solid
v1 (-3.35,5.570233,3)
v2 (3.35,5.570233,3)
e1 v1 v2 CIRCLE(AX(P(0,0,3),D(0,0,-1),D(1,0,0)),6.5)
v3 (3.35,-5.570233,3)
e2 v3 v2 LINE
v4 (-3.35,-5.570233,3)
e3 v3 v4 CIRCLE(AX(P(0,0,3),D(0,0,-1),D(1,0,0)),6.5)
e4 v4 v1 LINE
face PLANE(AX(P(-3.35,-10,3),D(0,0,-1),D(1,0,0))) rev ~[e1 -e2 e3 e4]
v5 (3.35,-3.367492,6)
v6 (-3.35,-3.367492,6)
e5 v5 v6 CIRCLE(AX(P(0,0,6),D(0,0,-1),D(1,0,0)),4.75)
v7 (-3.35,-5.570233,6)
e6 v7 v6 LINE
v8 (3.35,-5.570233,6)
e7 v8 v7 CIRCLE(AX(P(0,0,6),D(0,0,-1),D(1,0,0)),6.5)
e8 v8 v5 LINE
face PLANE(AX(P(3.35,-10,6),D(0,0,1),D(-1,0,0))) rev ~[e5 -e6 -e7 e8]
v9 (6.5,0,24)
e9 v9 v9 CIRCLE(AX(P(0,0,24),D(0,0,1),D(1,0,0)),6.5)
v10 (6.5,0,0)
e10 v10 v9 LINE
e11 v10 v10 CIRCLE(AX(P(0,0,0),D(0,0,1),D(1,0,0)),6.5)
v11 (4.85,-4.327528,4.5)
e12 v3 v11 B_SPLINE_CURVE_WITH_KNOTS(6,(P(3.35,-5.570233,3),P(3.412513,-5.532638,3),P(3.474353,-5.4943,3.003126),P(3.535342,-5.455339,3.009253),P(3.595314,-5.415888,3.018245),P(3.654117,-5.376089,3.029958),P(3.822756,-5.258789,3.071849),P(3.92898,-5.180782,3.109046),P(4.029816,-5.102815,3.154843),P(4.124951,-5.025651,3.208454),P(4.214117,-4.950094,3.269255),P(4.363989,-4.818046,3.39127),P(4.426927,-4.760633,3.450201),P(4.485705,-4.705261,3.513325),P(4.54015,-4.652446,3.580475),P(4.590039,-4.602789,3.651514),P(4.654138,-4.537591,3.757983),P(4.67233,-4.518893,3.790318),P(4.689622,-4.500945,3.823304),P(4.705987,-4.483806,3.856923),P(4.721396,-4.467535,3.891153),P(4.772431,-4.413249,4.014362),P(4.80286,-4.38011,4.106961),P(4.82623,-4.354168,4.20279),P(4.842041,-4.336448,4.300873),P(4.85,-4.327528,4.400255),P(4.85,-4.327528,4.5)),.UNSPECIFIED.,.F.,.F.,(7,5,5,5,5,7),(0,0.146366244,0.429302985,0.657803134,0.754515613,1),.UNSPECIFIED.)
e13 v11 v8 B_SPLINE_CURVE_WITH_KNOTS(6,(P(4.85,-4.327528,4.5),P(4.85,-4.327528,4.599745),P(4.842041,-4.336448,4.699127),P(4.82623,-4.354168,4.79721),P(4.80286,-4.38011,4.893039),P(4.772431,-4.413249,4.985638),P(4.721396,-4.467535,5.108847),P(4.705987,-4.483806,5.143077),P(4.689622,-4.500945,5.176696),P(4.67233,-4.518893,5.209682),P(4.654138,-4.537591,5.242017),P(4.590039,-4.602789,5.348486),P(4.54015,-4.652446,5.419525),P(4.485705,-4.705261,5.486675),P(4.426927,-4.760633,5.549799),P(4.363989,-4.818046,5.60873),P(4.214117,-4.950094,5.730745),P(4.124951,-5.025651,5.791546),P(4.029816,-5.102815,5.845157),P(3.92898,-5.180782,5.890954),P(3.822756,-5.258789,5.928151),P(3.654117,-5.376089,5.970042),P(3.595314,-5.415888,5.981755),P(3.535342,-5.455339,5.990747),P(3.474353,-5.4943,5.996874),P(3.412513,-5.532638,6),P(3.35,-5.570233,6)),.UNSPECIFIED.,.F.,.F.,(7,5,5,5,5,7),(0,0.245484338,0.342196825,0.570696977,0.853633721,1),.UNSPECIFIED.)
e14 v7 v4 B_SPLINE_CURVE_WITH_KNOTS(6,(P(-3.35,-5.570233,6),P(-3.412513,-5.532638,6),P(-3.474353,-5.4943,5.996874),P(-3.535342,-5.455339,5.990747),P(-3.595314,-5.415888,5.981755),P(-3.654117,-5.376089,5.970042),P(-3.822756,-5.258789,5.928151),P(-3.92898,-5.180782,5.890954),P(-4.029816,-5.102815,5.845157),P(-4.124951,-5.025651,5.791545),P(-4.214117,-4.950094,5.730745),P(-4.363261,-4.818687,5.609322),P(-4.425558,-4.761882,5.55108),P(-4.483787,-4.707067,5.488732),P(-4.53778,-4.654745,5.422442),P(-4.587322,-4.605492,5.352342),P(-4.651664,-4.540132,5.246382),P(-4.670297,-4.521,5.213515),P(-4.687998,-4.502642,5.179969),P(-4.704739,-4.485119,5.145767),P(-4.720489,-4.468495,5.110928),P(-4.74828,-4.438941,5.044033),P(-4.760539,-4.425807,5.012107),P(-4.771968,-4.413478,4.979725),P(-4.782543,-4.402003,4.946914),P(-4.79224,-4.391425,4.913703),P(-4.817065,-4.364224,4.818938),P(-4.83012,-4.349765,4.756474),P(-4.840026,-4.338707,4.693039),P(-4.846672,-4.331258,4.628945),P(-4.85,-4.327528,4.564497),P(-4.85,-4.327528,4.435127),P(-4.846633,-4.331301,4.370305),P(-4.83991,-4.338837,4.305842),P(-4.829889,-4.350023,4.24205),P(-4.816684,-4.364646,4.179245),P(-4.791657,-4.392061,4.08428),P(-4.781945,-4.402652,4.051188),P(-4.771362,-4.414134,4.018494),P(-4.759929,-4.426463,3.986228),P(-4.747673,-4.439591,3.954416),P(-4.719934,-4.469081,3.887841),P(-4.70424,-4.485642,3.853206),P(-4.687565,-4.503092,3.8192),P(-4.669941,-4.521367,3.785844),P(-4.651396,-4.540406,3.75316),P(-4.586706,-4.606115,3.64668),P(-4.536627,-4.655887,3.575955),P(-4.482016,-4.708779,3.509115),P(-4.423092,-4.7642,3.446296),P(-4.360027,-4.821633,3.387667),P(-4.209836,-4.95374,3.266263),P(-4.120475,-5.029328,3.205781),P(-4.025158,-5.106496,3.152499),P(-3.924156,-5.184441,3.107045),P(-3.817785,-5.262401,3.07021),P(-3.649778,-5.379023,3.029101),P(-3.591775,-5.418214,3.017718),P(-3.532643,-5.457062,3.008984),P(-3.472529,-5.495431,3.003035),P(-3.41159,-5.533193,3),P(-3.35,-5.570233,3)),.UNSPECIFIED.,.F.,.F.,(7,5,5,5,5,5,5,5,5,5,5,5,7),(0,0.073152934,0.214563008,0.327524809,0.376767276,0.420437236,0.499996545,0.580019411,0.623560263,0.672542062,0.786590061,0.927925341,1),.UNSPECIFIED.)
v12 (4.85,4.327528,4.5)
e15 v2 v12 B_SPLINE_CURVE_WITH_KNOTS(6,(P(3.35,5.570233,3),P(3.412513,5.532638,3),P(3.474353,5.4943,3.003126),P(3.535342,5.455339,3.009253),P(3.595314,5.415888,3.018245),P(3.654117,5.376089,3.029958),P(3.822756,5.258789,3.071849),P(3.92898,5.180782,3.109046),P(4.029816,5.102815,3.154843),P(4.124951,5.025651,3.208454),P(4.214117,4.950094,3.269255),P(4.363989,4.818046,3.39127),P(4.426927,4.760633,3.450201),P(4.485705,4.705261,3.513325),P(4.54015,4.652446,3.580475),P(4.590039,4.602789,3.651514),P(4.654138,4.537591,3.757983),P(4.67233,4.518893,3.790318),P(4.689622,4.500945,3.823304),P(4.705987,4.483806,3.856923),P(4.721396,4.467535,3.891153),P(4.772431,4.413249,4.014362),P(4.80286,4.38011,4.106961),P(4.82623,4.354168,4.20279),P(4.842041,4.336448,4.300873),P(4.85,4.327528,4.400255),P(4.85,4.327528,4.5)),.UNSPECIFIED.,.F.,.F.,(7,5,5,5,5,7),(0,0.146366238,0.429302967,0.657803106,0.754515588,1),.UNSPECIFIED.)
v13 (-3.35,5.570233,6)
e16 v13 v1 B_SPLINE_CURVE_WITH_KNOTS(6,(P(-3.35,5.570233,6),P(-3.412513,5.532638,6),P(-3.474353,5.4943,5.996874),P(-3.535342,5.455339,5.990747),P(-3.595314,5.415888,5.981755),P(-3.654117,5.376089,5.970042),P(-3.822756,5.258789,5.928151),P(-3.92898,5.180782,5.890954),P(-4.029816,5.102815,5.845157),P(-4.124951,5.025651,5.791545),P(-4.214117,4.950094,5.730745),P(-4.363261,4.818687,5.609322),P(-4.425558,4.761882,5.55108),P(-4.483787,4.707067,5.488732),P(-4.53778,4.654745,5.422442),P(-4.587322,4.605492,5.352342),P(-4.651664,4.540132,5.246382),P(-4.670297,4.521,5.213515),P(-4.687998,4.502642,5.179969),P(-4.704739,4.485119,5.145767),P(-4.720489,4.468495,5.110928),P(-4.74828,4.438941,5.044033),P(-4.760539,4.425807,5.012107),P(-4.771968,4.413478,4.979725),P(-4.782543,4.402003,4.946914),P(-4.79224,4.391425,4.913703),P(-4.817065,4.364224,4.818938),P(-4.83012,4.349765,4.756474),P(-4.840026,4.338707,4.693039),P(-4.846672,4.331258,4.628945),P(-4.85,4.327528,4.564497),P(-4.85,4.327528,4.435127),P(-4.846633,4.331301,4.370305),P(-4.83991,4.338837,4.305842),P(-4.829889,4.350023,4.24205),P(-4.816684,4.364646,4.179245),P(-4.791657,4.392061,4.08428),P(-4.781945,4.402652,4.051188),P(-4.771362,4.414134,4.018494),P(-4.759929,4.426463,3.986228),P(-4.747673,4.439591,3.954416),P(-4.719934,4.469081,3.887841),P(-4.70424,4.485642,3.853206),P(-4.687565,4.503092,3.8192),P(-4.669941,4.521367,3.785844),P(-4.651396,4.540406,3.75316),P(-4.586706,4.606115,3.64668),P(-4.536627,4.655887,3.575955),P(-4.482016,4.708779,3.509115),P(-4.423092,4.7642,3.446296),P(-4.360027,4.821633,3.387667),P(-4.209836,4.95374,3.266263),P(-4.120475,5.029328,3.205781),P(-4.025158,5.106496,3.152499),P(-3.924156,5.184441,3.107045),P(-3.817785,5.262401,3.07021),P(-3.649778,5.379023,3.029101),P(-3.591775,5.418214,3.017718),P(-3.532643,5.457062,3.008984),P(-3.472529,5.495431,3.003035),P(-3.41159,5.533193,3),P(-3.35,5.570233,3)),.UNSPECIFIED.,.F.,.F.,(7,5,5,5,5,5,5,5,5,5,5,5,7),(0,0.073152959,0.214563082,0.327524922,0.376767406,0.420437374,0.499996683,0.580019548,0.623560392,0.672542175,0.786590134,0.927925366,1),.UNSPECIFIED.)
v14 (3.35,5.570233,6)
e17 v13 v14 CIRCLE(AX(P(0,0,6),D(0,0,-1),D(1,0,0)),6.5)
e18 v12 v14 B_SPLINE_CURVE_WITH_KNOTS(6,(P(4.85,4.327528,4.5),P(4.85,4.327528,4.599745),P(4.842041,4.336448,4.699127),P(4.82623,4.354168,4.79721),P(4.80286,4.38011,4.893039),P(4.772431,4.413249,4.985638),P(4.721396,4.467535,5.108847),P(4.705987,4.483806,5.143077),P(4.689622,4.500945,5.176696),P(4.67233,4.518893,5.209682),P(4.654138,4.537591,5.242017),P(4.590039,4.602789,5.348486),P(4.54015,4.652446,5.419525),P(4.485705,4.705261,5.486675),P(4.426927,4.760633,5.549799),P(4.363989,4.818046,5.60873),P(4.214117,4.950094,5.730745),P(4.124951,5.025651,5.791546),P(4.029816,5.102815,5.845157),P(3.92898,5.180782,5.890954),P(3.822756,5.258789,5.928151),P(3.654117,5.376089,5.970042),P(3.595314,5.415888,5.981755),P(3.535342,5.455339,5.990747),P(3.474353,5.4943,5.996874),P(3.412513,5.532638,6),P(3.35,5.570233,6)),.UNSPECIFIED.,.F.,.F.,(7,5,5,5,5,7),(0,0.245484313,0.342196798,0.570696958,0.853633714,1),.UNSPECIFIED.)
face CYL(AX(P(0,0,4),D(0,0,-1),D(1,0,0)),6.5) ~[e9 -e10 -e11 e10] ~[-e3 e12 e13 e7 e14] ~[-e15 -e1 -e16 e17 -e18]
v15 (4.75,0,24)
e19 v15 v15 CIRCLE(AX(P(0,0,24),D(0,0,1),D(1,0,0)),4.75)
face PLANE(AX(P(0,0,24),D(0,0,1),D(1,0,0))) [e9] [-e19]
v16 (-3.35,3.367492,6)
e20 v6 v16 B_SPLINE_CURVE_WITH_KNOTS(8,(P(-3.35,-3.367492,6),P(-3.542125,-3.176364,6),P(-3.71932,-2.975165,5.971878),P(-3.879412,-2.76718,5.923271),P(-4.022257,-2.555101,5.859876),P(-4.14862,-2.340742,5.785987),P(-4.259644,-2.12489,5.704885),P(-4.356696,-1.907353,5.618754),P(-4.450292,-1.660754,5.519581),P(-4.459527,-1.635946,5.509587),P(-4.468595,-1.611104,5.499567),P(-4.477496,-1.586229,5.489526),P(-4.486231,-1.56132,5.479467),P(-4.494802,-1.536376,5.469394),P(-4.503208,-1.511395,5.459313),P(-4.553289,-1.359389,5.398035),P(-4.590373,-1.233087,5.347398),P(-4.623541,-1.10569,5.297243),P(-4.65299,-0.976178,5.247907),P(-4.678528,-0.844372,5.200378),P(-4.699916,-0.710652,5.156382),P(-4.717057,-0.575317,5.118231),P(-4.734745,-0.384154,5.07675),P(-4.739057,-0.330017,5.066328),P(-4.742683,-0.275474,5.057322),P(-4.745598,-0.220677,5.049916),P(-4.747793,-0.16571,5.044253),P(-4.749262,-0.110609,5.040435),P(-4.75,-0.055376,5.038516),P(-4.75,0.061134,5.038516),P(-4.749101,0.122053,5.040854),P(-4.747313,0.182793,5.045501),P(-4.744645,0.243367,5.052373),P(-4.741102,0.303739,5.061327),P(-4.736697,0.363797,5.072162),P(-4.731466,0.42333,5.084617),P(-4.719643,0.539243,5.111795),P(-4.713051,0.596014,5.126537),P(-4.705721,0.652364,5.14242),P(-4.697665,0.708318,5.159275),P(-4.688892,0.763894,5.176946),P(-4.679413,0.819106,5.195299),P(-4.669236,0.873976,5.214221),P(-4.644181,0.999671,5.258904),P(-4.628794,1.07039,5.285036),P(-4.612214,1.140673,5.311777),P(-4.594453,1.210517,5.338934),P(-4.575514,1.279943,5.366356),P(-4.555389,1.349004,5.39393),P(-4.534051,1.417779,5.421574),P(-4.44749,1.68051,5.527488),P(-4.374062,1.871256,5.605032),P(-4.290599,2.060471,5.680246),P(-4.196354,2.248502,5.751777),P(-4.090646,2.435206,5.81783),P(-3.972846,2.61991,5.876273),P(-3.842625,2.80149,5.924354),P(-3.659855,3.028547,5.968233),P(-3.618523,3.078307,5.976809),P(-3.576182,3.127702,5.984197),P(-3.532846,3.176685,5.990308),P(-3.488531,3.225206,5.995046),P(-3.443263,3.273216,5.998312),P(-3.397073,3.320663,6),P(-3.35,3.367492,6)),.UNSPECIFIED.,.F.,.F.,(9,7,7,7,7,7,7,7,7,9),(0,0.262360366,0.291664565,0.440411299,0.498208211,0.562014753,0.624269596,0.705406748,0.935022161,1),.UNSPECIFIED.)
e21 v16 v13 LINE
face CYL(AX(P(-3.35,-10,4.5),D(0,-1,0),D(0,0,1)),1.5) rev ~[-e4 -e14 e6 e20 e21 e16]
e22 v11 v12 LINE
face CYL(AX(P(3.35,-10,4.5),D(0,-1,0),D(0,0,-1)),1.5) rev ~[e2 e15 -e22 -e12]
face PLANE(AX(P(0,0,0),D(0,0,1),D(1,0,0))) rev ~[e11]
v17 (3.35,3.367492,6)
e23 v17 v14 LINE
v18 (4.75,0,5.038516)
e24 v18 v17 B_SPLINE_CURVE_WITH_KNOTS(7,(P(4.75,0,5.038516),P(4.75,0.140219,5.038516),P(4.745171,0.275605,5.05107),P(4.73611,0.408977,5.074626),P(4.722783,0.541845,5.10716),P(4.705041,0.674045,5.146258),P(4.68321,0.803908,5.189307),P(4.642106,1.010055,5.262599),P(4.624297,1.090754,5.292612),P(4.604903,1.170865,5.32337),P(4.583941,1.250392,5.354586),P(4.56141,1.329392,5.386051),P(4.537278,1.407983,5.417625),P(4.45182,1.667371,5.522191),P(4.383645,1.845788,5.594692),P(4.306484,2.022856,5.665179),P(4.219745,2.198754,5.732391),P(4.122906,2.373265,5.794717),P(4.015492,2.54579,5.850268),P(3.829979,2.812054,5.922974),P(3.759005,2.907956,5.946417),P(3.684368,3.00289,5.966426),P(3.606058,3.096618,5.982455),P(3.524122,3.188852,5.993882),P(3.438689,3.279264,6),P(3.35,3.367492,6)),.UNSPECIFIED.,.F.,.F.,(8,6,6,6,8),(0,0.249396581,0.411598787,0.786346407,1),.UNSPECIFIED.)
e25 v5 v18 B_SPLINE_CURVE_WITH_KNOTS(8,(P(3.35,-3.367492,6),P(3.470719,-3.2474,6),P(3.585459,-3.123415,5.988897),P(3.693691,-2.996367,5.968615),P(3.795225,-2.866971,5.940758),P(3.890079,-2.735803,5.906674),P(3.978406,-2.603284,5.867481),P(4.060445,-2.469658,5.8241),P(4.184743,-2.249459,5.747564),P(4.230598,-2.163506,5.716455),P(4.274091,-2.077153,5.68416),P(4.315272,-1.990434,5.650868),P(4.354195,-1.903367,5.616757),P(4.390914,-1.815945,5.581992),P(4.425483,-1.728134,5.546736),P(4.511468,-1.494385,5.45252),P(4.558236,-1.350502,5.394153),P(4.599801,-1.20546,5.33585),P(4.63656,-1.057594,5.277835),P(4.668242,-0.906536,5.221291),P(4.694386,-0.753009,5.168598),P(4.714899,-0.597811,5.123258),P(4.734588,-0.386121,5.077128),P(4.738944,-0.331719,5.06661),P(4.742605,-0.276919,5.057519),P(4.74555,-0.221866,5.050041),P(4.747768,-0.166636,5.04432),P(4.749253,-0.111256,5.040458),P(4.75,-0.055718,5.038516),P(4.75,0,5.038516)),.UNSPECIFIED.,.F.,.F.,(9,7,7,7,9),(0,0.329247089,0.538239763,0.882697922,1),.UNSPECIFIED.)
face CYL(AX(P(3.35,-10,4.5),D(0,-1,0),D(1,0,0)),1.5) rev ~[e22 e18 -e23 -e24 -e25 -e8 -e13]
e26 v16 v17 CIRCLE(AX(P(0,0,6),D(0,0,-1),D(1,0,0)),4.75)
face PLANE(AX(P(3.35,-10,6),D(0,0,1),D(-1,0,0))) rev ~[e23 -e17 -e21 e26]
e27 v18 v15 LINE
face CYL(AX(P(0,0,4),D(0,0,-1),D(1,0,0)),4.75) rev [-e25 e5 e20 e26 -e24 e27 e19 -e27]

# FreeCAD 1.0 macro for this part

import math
import FreeCAD as App
import Part
import Sketcher

V = App.Vector

doc = App.newDocument("Part")
body = doc.addObject("PartDesign::Body", "Body")

# Sketch on XY plane
sketch1 = body.newObject("Sketcher::SketchObject", "Sketch")
sketch1.AttachmentSupport = (doc.getObject("XY_Plane"), [""])
sketch1.MapMode = "FlatFace"
sketch1.addGeometry(Part.Circle(V(0, 0, 0), V(0, 0, 1), 6), False)
sketch1.addConstraint([
    Sketcher.Constraint("Coincident", 0, 3, -1, 1),
    Sketcher.Constraint("Diameter", 0, 13.0),
])
pad1 = body.newObject("PartDesign::Pad", "Pad")
pad1.Profile = sketch1
pad1.Length = 4

# Sketch on XY plane
sketch2 = body.newObject("Sketcher::SketchObject", "Sketch001")
sketch2.AttachmentSupport = (doc.getObject("XY_Plane"), [""])
sketch2.MapMode = "FlatFace"
sketch2.AttachmentOffset = App.Placement(V(0, 0, 4), App.Rotation())
sketch2.addGeometry([
    Part.Circle(V(0, 0, 0), V(0, 0, 1), 6.5),
    Part.Circle(V(0, 0, 0), V(0, 0, 1), 4.8),
], False)
sketch2.addConstraint([
    Sketcher.Constraint("Coincident", 0, 3, -1, 1),
    Sketcher.Constraint("Coincident", 1, 3, -1, 1),
    Sketcher.Constraint("Diameter", 0, 13.0),
    Sketcher.Constraint("Diameter", 1, 9.5),
])
pad2 = body.newObject("PartDesign::Pad", "Pad001")
pad2.Profile = sketch2
pad2.Length = 20

# Sketch on XZ plane
sketch3 = body.newObject("Sketcher::SketchObject", "Sketch002")
sketch3.AttachmentSupport = (doc.getObject("XZ_Plane"), [""])
sketch3.MapMode = "FlatFace"
sketch3.AttachmentOffset = App.Placement(V(0, 0, 10), App.Rotation())
sketch3.addGeometry([
    Part.LineSegment(V(-3.4, 3, 0), V(3.4, 3, 0)),  # 0
    Part.ArcOfCircle(Part.Circle(V(3.4, 4.5, 0), V(0, 0, 1), 1.5), math.radians(-90), math.radians(0)),  # 1
    Part.ArcOfCircle(Part.Circle(V(3.4, 4.5, 0), V(0, 0, 1), 1.5), math.radians(0), math.radians(90)),  # 2
    Part.LineSegment(V(3.4, 6, 0), V(-3.4, 6, 0)),  # 3
    Part.ArcOfCircle(Part.Circle(V(-3.4, 4.5, 0), V(0, 0, 1), 1.5), math.radians(90), math.radians(270)),  # 4
], False)
sketch3.addConstraint([
    Sketcher.Constraint("Tangent", 0, 2, 1, 1),
    Sketcher.Constraint("Tangent", 1, 2, 2, 1),
    Sketcher.Constraint("Tangent", 2, 2, 3, 1),
    Sketcher.Constraint("Tangent", 3, 2, 4, 1),
    Sketcher.Constraint("Tangent", 4, 2, 0, 1),
    Sketcher.Constraint("Horizontal", 0),
    Sketcher.Constraint("Horizontal", 3),
    Sketcher.Constraint("Equal", 1, 2),
    Sketcher.Constraint("Horizontal", 4, 3, 1, 2),
    Sketcher.Constraint("Radius", 1, 1.5),
    Sketcher.Constraint("DistanceX", 0, 1, 0, 2, 6.7),
    Sketcher.Constraint("DistanceY", -1, 1, 0, 2, 3.0),
    Sketcher.Constraint("DistanceX", -1, 1, 1, 3, 3.35),
])
pocket1 = body.newObject("PartDesign::Pocket", "Pocket")
pocket1.Profile = sketch3
pocket1.Length = 25

doc.recompute()
